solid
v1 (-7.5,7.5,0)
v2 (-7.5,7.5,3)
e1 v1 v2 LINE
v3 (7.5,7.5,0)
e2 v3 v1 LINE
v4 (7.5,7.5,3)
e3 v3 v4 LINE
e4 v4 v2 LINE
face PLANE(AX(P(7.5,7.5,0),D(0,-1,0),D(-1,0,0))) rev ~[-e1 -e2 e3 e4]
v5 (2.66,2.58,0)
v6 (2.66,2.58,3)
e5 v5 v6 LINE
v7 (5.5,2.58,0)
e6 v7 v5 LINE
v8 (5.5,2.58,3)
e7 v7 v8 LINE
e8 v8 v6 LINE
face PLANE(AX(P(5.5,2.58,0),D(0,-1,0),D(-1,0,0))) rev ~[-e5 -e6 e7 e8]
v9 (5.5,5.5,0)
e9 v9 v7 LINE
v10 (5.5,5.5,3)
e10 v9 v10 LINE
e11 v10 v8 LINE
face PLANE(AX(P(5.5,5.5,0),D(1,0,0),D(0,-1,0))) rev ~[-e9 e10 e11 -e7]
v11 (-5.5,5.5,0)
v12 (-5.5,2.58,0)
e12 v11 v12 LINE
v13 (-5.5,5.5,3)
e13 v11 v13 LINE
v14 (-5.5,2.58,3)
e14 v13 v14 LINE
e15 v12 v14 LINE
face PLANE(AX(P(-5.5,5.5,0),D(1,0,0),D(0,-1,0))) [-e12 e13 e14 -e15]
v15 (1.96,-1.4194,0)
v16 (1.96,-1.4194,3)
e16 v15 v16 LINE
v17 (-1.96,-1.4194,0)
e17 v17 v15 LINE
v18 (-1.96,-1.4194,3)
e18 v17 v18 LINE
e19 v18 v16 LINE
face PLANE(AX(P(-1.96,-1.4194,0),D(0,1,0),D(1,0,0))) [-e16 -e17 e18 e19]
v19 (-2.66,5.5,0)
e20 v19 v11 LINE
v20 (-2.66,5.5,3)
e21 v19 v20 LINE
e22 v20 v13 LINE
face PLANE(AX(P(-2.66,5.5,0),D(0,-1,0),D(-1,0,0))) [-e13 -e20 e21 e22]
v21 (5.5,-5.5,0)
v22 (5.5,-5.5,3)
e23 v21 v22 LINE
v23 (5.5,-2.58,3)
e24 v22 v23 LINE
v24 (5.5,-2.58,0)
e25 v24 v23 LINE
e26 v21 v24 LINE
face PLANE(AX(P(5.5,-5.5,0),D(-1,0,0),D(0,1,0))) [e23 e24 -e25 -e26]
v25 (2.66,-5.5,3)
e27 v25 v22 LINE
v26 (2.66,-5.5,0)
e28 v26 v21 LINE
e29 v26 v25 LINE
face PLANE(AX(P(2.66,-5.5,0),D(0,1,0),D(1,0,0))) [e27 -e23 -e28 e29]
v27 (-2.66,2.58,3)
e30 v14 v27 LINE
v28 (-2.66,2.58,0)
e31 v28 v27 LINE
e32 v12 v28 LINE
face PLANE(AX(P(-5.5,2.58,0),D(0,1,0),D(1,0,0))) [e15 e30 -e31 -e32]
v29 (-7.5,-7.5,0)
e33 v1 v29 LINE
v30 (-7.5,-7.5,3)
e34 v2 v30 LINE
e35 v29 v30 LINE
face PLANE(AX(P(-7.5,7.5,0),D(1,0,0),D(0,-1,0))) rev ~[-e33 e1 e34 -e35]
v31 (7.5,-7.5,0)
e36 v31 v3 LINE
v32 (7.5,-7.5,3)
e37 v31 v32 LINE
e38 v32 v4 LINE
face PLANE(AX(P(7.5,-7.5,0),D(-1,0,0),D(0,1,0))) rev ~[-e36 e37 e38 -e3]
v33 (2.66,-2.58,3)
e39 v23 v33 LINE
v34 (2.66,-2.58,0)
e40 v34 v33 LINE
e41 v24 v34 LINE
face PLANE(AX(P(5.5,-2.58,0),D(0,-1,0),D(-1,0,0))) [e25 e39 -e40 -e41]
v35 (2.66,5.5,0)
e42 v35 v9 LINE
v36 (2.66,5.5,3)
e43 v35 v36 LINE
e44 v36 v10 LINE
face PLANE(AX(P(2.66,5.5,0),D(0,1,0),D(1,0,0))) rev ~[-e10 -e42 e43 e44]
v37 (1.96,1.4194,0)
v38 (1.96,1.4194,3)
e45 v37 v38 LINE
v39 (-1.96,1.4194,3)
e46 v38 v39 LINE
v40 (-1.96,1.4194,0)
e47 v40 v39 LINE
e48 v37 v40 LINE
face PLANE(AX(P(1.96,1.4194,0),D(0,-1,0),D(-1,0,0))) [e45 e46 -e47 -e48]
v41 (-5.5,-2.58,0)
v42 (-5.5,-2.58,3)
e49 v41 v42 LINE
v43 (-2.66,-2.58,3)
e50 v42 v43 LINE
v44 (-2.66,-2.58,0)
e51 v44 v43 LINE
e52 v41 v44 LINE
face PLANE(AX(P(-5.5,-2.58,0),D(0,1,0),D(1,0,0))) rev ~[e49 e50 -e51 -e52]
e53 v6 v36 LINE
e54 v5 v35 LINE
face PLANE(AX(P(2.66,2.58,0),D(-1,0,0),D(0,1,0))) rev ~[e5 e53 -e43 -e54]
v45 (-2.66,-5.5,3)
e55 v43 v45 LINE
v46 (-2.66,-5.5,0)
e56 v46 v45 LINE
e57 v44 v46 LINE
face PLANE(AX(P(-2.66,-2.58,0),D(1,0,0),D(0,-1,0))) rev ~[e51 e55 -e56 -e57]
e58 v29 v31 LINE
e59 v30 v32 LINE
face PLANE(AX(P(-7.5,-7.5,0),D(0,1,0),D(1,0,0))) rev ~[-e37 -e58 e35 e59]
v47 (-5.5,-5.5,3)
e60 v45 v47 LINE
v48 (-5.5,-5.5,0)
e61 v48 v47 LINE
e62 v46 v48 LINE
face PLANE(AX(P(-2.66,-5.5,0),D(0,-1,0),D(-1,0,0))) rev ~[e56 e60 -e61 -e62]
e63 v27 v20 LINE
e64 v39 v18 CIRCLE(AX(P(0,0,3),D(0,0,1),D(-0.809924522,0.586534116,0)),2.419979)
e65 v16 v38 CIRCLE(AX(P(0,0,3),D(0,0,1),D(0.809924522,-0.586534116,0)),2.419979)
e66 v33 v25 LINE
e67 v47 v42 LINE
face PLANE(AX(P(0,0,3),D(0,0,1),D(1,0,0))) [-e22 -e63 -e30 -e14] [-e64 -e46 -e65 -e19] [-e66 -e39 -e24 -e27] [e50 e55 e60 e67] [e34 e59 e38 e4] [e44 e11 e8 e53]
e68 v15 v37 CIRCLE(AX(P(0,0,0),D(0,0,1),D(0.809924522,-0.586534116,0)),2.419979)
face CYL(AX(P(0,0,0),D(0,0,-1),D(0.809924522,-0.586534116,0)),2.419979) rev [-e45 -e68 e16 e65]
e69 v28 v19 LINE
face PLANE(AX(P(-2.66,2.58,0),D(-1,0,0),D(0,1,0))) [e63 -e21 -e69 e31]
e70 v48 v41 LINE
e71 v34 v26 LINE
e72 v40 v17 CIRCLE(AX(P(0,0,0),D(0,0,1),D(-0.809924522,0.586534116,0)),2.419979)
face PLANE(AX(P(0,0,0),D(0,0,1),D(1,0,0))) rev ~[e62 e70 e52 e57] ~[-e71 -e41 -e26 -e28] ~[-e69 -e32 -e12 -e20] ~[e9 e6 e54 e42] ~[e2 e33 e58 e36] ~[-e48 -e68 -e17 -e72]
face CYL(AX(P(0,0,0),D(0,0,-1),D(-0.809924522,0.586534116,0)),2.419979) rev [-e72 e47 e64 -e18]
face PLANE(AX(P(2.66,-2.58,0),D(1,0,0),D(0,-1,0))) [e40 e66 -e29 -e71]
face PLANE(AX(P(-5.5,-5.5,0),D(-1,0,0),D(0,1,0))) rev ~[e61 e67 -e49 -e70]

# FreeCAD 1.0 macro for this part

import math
import FreeCAD as App
import Part
import Sketcher


def add_polygon(sketch, points):
    """Adds a closed chain of lines whose ends are joined by coincident constraints."""
    first, n = sketch.GeometryCount, len(points)
    for a, b in zip(points, points[1:] + points[:1]):
        sketch.addGeometry(Part.LineSegment(App.Vector(*a, 0), App.Vector(*b, 0)), False)
    for i in range(n):
        sketch.addConstraint(Sketcher.Constraint("Coincident", first + i, 2, first + (i + 1) % n, 1))

doc = App.newDocument("Part")
body = doc.addObject("PartDesign::Body", "Body")

sketch1 = body.newObject("Sketcher::SketchObject", "Sketch")
sketch1.AttachmentSupport = (doc.getObject("XY_Plane"), [""])
sketch1.MapMode = "FlatFace"
add_polygon(sketch1, [(-7.5, 7.5), (-7.5, -7.5), (7.5, -7.5), (7.5, 7.5)])
add_polygon(sketch1, [(-5.5, -5.5), (-5.5, -2.6), (-2.7, -2.6), (-2.7, -5.5)])
add_polygon(sketch1, [(2.7, -5.5), (2.7, -2.6), (5.5, -2.6), (5.5, -5.5)])
add_polygon(sketch1, [(-2.7, 2.6), (-5.5, 2.6), (-5.5, 5.5), (-2.7, 5.5)])
sketch1.addGeometry(Part.LineSegment(App.Vector(2, -1.4, 0), App.Vector(-2, -1.4, 0)), False)
sketch1.addGeometry(Part.ArcOfCircle(Part.Circle(App.Vector(0, 0, 0), App.Vector(0, 0, 1), 2.4), math.radians(144), math.radians(216)), False)
sketch1.addGeometry(Part.LineSegment(App.Vector(-2, 1.4, 0), App.Vector(2, 1.4, 0)), False)
sketch1.addGeometry(Part.ArcOfCircle(Part.Circle(App.Vector(0, 0, 0), App.Vector(0, 0, 1), 2.4), math.radians(-36), math.radians(36)), False)
add_polygon(sketch1, [(5.5, 5.5), (5.5, 2.6), (2.7, 2.6), (2.7, 5.5)])
sketch1.addConstraint([
    Sketcher.Constraint("Coincident", 16, 2, 17, 2),
    Sketcher.Constraint("Coincident", 17, 1, 18, 1),
    Sketcher.Constraint("Coincident", 18, 2, 19, 2),
    Sketcher.Constraint("Coincident", 19, 1, 16, 1),
    Sketcher.Constraint("Vertical", 0),
    Sketcher.Constraint("Horizontal", 1),
    Sketcher.Constraint("Vertical", 2),
    Sketcher.Constraint("Horizontal", 3),
    Sketcher.Constraint("Vertical", 4),
    Sketcher.Constraint("Horizontal", 5),
    Sketcher.Constraint("Vertical", 6),
    Sketcher.Constraint("Horizontal", 7),
    Sketcher.Constraint("Vertical", 8),
    Sketcher.Constraint("Horizontal", 9),
    Sketcher.Constraint("Vertical", 10),
    Sketcher.Constraint("Horizontal", 11),
    Sketcher.Constraint("Horizontal", 12),
    Sketcher.Constraint("Vertical", 13),
    Sketcher.Constraint("Horizontal", 14),
    Sketcher.Constraint("Vertical", 15),
    Sketcher.Constraint("Horizontal", 16),
    Sketcher.Constraint("Horizontal", 18),
    Sketcher.Constraint("Vertical", 20),
    Sketcher.Constraint("Horizontal", 21),
    Sketcher.Constraint("Vertical", 22),
    Sketcher.Constraint("Horizontal", 23),
    Sketcher.Constraint("Coincident", 17, 3, -1, 1),
    Sketcher.Constraint("Coincident", 19, 3, -1, 1),
    Sketcher.Constraint("Equal", 17, 19),
    Sketcher.Constraint("Symmetric", 0, 2, 2, 2, -1, 1),
    Sketcher.Constraint("Symmetric", 9, 2, 12, 2, -1, 1),
    Sketcher.Constraint("Symmetric", 11, 2, 14, 2, -1, 1),
    Sketcher.Constraint("Symmetric", 4, 2, 20, 2, -1, 1),
    Sketcher.Constraint("Symmetric", 6, 2, 22, 2, -1, 1),
    Sketcher.Constraint("Symmetric", 5, 2, 8, 2, -2),
    Sketcher.Constraint("Symmetric", 7, 2, 10, 2, -2),
    Sketcher.Constraint("Vertical", 16, 2, 17, 1),
    Sketcher.Constraint("Equal", 3, 0),
    Sketcher.Constraint("DistanceX", 1, 1, 1, 2, 15.0),
    Sketcher.Constraint("Radius", 17, 2.42),
    Sketcher.Constraint("DistanceX", 0, 2, 4, 2, 2.0),
    Sketcher.Constraint("DistanceY", 0, 2, 6, 2, 2.0),
    Sketcher.Constraint("DistanceX", 5, 1, 5, 2, 2.84),
    Sketcher.Constraint("DistanceX", 16, 2, 16, 1, 3.92),
    Sketcher.Constraint("DistanceY", 4, 1, 4, 2, 2.92),
])
pad1 = body.newObject("PartDesign::Pad", "Pad")
pad1.Profile = sketch1
pad1.Length = 3

doc.recompute()
